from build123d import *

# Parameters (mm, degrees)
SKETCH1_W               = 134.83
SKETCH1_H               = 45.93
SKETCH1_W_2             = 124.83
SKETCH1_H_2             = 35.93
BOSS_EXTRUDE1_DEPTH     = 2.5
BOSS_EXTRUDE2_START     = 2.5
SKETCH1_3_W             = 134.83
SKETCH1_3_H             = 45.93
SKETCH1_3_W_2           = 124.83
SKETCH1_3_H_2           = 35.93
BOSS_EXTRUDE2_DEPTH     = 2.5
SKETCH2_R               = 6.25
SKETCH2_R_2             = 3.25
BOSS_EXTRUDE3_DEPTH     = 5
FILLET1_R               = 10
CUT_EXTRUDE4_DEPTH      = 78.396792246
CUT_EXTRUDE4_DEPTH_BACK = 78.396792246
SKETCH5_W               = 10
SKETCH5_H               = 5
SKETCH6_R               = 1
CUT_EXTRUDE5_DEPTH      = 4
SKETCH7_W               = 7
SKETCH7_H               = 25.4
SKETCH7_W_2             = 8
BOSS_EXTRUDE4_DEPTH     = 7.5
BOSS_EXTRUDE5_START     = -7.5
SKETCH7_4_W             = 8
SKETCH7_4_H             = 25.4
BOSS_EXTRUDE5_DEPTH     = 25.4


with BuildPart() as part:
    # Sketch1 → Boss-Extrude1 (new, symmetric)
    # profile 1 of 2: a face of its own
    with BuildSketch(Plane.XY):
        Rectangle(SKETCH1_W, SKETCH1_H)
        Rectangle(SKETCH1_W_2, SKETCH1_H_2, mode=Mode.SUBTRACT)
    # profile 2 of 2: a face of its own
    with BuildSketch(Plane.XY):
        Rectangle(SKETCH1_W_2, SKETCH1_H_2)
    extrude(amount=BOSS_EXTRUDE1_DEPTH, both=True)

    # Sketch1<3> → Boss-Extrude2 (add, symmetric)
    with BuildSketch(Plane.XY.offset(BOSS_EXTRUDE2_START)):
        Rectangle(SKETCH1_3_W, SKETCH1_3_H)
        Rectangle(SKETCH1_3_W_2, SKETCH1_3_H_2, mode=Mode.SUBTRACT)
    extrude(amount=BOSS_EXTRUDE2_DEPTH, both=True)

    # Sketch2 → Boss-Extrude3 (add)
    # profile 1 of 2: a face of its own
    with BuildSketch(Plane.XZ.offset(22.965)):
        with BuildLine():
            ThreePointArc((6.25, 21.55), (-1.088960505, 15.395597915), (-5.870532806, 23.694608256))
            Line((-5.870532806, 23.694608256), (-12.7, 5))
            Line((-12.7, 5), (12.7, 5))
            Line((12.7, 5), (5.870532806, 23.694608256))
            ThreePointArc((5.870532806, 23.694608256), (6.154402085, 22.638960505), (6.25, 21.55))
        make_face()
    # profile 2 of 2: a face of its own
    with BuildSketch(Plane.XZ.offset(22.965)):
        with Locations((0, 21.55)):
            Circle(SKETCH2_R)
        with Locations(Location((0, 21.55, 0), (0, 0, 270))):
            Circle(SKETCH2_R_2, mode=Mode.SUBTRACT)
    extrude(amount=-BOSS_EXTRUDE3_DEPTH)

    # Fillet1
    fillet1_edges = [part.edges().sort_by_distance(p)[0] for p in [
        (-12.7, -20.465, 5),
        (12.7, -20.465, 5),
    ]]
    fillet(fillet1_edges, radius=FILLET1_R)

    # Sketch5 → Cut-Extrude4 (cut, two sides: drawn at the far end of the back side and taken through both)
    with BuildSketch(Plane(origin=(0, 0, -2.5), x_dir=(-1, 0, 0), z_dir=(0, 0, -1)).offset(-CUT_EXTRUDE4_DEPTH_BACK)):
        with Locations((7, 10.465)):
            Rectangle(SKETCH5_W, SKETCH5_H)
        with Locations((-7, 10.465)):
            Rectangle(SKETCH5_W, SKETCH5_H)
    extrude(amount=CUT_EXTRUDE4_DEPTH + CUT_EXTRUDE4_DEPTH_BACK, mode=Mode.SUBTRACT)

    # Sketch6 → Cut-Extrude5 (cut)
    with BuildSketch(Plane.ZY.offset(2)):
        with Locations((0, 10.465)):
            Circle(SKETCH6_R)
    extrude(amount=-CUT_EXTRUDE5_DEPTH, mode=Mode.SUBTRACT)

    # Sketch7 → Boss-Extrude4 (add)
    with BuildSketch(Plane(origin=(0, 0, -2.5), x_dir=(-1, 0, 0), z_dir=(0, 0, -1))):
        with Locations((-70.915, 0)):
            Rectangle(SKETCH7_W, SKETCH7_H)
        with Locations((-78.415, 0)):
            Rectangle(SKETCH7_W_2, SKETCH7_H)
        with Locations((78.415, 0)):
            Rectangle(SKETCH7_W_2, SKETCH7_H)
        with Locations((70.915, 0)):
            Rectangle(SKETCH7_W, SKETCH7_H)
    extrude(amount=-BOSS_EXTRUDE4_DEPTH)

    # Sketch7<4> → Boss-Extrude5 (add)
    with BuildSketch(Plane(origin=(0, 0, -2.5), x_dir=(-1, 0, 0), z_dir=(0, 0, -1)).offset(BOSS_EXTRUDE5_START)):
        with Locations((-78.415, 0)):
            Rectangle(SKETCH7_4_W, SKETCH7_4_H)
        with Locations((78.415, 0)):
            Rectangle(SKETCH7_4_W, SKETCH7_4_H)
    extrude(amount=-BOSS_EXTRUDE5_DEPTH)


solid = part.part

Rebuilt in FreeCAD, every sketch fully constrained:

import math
import FreeCAD as App
import Part
import Sketcher
from FreeCAD import Vector


def edges_at(feature, points):
    """Names of the edges that pass closest to the given points."""
    edges = feature.Shape.Edges
    near = lambda p: min(range(len(edges)), key=lambda i: edges[i].distToShape(Part.Vertex(*p))[0])
    return sorted({f"Edge{near(p) + 1}" for p in points})


def add_polygon(sketch, points):
    """Adds a closed chain of lines whose ends are joined by coincident constraints."""
    first, n = sketch.GeometryCount, len(points)
    for a, b in zip(points, points[1:] + points[:1]):
        sketch.addGeometry(Part.LineSegment(App.Vector(*a, 0), App.Vector(*b, 0)), False)
    for i in range(n):
        sketch.addConstraint(Sketcher.Constraint("Coincident", first + i, 2, first + (i + 1) % n, 1))

doc = App.newDocument("Part")
body = doc.addObject("PartDesign::Body", "Body")

# Sketch on XY plane
sketch1 = body.newObject("Sketcher::SketchObject", "Sketch")
sketch1.AttachmentSupport = (doc.getObject("XY_Plane"), [""])
sketch1.MapMode = "FlatFace"
add_polygon(sketch1, [(-67.415, 22.965), (-67.415, -22.965), (67.415, -22.965), (67.415, 22.965)])  # lines 0-3
sketch1.addConstraint([
    Sketcher.Constraint("Vertical", 0),
    Sketcher.Constraint("Horizontal", 1),
    Sketcher.Constraint("Vertical", 2),
    Sketcher.Constraint("Horizontal", 3),
    Sketcher.Constraint("Symmetric", 0, 2, 2, 2, -1, 1),
    Sketcher.Constraint("DistanceX", 1, 1, 1, 2, 134.83),
    Sketcher.Constraint("DistanceY", 0, 2, 0, 1, 45.93),
])
pad1 = body.newObject("PartDesign::Pad", "Pad")
pad1.Profile = sketch1
pad1.Length = 5
pad1.Midplane = True

# Sketch on XY plane
sketch2 = body.newObject("Sketcher::SketchObject", "Sketch001")
sketch2.AttachmentSupport = (doc.getObject("XY_Plane"), [""])
sketch2.MapMode = "FlatFace"
sketch2.AttachmentOffset = App.Placement(Vector(0, 0, 2.5), App.Rotation())
add_polygon(sketch2, [(-67.415, 22.965), (-67.415, -22.965), (67.415, -22.965), (67.415, 22.965)])  # lines 0-3
add_polygon(sketch2, [(62.415, -17.965), (-62.415, -17.965), (-62.415, 17.965), (62.415, 17.965)])  # lines 4-7
sketch2.addConstraint([
    Sketcher.Constraint("Vertical", 0),
    Sketcher.Constraint("Horizontal", 1),
    Sketcher.Constraint("Vertical", 2),
    Sketcher.Constraint("Horizontal", 3),
    Sketcher.Constraint("Horizontal", 4),
    Sketcher.Constraint("Vertical", 5),
    Sketcher.Constraint("Horizontal", 6),
    Sketcher.Constraint("Vertical", 7),
    Sketcher.Constraint("Symmetric", 0, 2, 2, 2, -1, 1),
    Sketcher.Constraint("Symmetric", 4, 2, 6, 2, -1, 1),
    Sketcher.Constraint("DistanceX", 0, 2, 4, 2, 5.0),
    Sketcher.Constraint("DistanceY", 0, 2, 4, 2, 5.0),
    Sketcher.Constraint("DistanceX", 1, 1, 1, 2, 134.83),
    Sketcher.Constraint("DistanceY", 0, 2, 0, 1, 45.93),
])
pad2 = body.newObject("PartDesign::Pad", "Pad001")
pad2.Profile = sketch2
pad2.Length = 5
pad2.Midplane = True

# Sketch on XZ plane
sketch3 = body.newObject("Sketcher::SketchObject", "Sketch002")
sketch3.AttachmentSupport = (doc.getObject("XZ_Plane"), [""])
sketch3.MapMode = "FlatFace"
sketch3.AttachmentOffset = App.Placement(Vector(0, 0, 22.965), App.Rotation())
sketch3.addGeometry([
    Part.LineSegment(Vector(-5.870533, 23.694608, 0), Vector(-12.7, 5, 0)),  # 0
    Part.LineSegment(Vector(-12.7, 5, 0), Vector(12.7, 5, 0)),  # 1
    Part.LineSegment(Vector(12.7, 5, 0), Vector(5.870533, 23.694608, 0)),  # 2
    Part.ArcOfCircle(Part.Circle(Vector(0, 21.55, 0), Vector(0, 0, 1), 6.25), math.radians(20.068132), math.radians(159.931868)),  # 3
    Part.Circle(Vector(0, 21.55, 0), Vector(0, 0, 1), 3.25),  # 4
], False)
sketch3.addConstraint([
    Sketcher.Constraint("Coincident", 0, 2, 1, 1),
    Sketcher.Constraint("Coincident", 1, 2, 2, 1),
    Sketcher.Constraint("Tangent", 2, 2, 3, 1),
    Sketcher.Constraint("Tangent", 3, 2, 0, 1),
    Sketcher.Constraint("Horizontal", 1),
    Sketcher.Constraint("Coincident", 4, 3, 3, 3),
    Sketcher.Constraint("Symmetric", 2, 2, 3, 2, -2),
    Sketcher.Constraint("Diameter", 4, 6.5),
    Sketcher.Constraint("Radius", 3, 6.25),
    Sketcher.Constraint("DistanceX", 1, 1, 1, 2, 25.4),
    Sketcher.Constraint("DistanceY", -1, 1, 0, 2, 5.0),
    Sketcher.Constraint("DistanceY", -1, 1, 3, 3, 21.55),
])
pad3 = body.newObject("PartDesign::Pad", "Pad002")
pad3.Profile = sketch3
pad3.Length = 5
pad3.Reversed = True
doc.recompute()

fillet = body.newObject("PartDesign::Fillet", "Fillet")
fillet.Base = (pad3, edges_at(pad3, [(-12.7, -20.465, 5), (12.7, -20.465, 5)]))
fillet.Radius = 10

# Sketch on XY plane
sketch4 = body.newObject("Sketcher::SketchObject", "Sketch003")
sketch4.AttachmentSupport = (doc.getObject("XY_Plane"), [""])
sketch4.MapMode = "FlatFace"
sketch4.AttachmentOffset = App.Placement(Vector(0, 0, -2.5), App.Rotation())
add_polygon(sketch4, [(-2, 12.965), (-2, 7.965), (-12, 7.965), (-12, 12.965)])  # lines 0-3
add_polygon(sketch4, [(12, 12.965), (12, 7.965), (2, 7.965), (2, 12.965)])  # lines 4-7
sketch4.addConstraint([
    Sketcher.Constraint("Vertical", 0),
    Sketcher.Constraint("Horizontal", 1),
    Sketcher.Constraint("Vertical", 2),
    Sketcher.Constraint("Horizontal", 3),
    Sketcher.Constraint("Vertical", 4),
    Sketcher.Constraint("Horizontal", 5),
    Sketcher.Constraint("Vertical", 6),
    Sketcher.Constraint("Horizontal", 7),
    Sketcher.Constraint("Symmetric", 1, 2, 4, 2, -2),
    Sketcher.Constraint("Symmetric", 3, 2, 6, 2, -2),
    Sketcher.Constraint("DistanceX", 1, 2, 1, 1, 10.0),
    Sketcher.Constraint("DistanceY", 0, 2, 0, 1, 5.0),
    Sketcher.Constraint("DistanceX", 0, 2, -1, 1, 2.0),
    Sketcher.Constraint("DistanceY", -1, 1, 0, 2, 7.965),
])
pocket1 = body.newObject("PartDesign::Pocket", "Pocket")
pocket1.Profile = sketch4
pocket1.Type = "ThroughAll"
pocket1.Midplane = True

# Sketch on YZ plane
sketch5 = body.newObject("Sketcher::SketchObject", "Sketch004")
sketch5.AttachmentSupport = (doc.getObject("YZ_Plane"), [""])
sketch5.MapMode = "FlatFace"
sketch5.AttachmentOffset = App.Placement(Vector(0, 0, -2), App.Rotation())
sketch5.addGeometry(Part.Circle(Vector(10.465, 0, 0), Vector(0, 0, 1), 1), False)
sketch5.addConstraint([
    Sketcher.Constraint("PointOnObject", 0, 3, -1),
    Sketcher.Constraint("Diameter", 0, 2.0),
    Sketcher.Constraint("DistanceX", -1, 1, 0, 3, 10.465),
])
pocket2 = body.newObject("PartDesign::Pocket", "Pocket001")
pocket2.Profile = sketch5
pocket2.Length = 4
pocket2.Reversed = True

# Sketch on XY plane
sketch6 = body.newObject("Sketcher::SketchObject", "Sketch005")
sketch6.AttachmentSupport = (doc.getObject("XY_Plane"), [""])
sketch6.MapMode = "FlatFace"
sketch6.AttachmentOffset = App.Placement(Vector(0, 0, -2.5), App.Rotation())
add_polygon(sketch6, [(67.415, -12.7), (67.415, 12.7), (82.415, 12.7), (82.415, -12.7)])  # lines 0-3
add_polygon(sketch6, [(-82.415, -12.7), (-82.415, 12.7), (-67.415, 12.7), (-67.415, -12.7)])  # lines 4-7
sketch6.addConstraint([
    Sketcher.Constraint("Vertical", 0),
    Sketcher.Constraint("Horizontal", 1),
    Sketcher.Constraint("Vertical", 2),
    Sketcher.Constraint("Horizontal", 3),
    Sketcher.Constraint("Vertical", 4),
    Sketcher.Constraint("Horizontal", 5),
    Sketcher.Constraint("Vertical", 6),
    Sketcher.Constraint("Horizontal", 7),
    Sketcher.Constraint("Symmetric", 2, 2, 4, 2, -1, 1),
    Sketcher.Constraint("Symmetric", 0, 2, 6, 2, -1, 1),
    Sketcher.Constraint("Horizontal", 1, 2, 4, 2),
    Sketcher.Constraint("DistanceX", 1, 1, 1, 2, 15.0),
    Sketcher.Constraint("DistanceY", 0, 1, 0, 2, 25.4),
    Sketcher.Constraint("DistanceX", 4, 2, 0, 2, 149.83),
])
pad4 = body.newObject("PartDesign::Pad", "Pad003")
pad4.Profile = sketch6
pad4.Length = 7.5

# Sketch on XY plane
sketch7 = body.newObject("Sketcher::SketchObject", "Sketch006")
sketch7.AttachmentSupport = (doc.getObject("XY_Plane"), [""])
sketch7.MapMode = "FlatFace"
sketch7.AttachmentOffset = App.Placement(Vector(0, 0, 5), App.Rotation())
add_polygon(sketch7, [(82.415, 12.7), (82.415, -12.7), (74.415, -12.7), (74.415, 12.7)])  # lines 0-3
add_polygon(sketch7, [(-74.415, 12.7), (-74.415, -12.7), (-82.415, -12.7), (-82.415, 12.7)])  # lines 4-7
sketch7.addConstraint([
    Sketcher.Constraint("Vertical", 0),
    Sketcher.Constraint("Horizontal", 1),
    Sketcher.Constraint("Vertical", 2),
    Sketcher.Constraint("Horizontal", 3),
    Sketcher.Constraint("Vertical", 4),
    Sketcher.Constraint("Horizontal", 5),
    Sketcher.Constraint("Vertical", 6),
    Sketcher.Constraint("Horizontal", 7),
    Sketcher.Constraint("Symmetric", 2, 2, 4, 2, -1, 1),
    Sketcher.Constraint("Symmetric", 0, 2, 6, 2, -1, 1),
    Sketcher.Constraint("Horizontal", 1, 2, 4, 2),
    Sketcher.Constraint("DistanceX", 1, 2, 1, 1, 8.0),
    Sketcher.Constraint("DistanceY", 0, 2, 0, 1, 25.4),
    Sketcher.Constraint("DistanceX", 4, 2, 1, 2, 148.83),
])
pad5 = body.newObject("PartDesign::Pad", "Pad004")
pad5.Profile = sketch7
pad5.Length = 25.4

doc.recompute()
